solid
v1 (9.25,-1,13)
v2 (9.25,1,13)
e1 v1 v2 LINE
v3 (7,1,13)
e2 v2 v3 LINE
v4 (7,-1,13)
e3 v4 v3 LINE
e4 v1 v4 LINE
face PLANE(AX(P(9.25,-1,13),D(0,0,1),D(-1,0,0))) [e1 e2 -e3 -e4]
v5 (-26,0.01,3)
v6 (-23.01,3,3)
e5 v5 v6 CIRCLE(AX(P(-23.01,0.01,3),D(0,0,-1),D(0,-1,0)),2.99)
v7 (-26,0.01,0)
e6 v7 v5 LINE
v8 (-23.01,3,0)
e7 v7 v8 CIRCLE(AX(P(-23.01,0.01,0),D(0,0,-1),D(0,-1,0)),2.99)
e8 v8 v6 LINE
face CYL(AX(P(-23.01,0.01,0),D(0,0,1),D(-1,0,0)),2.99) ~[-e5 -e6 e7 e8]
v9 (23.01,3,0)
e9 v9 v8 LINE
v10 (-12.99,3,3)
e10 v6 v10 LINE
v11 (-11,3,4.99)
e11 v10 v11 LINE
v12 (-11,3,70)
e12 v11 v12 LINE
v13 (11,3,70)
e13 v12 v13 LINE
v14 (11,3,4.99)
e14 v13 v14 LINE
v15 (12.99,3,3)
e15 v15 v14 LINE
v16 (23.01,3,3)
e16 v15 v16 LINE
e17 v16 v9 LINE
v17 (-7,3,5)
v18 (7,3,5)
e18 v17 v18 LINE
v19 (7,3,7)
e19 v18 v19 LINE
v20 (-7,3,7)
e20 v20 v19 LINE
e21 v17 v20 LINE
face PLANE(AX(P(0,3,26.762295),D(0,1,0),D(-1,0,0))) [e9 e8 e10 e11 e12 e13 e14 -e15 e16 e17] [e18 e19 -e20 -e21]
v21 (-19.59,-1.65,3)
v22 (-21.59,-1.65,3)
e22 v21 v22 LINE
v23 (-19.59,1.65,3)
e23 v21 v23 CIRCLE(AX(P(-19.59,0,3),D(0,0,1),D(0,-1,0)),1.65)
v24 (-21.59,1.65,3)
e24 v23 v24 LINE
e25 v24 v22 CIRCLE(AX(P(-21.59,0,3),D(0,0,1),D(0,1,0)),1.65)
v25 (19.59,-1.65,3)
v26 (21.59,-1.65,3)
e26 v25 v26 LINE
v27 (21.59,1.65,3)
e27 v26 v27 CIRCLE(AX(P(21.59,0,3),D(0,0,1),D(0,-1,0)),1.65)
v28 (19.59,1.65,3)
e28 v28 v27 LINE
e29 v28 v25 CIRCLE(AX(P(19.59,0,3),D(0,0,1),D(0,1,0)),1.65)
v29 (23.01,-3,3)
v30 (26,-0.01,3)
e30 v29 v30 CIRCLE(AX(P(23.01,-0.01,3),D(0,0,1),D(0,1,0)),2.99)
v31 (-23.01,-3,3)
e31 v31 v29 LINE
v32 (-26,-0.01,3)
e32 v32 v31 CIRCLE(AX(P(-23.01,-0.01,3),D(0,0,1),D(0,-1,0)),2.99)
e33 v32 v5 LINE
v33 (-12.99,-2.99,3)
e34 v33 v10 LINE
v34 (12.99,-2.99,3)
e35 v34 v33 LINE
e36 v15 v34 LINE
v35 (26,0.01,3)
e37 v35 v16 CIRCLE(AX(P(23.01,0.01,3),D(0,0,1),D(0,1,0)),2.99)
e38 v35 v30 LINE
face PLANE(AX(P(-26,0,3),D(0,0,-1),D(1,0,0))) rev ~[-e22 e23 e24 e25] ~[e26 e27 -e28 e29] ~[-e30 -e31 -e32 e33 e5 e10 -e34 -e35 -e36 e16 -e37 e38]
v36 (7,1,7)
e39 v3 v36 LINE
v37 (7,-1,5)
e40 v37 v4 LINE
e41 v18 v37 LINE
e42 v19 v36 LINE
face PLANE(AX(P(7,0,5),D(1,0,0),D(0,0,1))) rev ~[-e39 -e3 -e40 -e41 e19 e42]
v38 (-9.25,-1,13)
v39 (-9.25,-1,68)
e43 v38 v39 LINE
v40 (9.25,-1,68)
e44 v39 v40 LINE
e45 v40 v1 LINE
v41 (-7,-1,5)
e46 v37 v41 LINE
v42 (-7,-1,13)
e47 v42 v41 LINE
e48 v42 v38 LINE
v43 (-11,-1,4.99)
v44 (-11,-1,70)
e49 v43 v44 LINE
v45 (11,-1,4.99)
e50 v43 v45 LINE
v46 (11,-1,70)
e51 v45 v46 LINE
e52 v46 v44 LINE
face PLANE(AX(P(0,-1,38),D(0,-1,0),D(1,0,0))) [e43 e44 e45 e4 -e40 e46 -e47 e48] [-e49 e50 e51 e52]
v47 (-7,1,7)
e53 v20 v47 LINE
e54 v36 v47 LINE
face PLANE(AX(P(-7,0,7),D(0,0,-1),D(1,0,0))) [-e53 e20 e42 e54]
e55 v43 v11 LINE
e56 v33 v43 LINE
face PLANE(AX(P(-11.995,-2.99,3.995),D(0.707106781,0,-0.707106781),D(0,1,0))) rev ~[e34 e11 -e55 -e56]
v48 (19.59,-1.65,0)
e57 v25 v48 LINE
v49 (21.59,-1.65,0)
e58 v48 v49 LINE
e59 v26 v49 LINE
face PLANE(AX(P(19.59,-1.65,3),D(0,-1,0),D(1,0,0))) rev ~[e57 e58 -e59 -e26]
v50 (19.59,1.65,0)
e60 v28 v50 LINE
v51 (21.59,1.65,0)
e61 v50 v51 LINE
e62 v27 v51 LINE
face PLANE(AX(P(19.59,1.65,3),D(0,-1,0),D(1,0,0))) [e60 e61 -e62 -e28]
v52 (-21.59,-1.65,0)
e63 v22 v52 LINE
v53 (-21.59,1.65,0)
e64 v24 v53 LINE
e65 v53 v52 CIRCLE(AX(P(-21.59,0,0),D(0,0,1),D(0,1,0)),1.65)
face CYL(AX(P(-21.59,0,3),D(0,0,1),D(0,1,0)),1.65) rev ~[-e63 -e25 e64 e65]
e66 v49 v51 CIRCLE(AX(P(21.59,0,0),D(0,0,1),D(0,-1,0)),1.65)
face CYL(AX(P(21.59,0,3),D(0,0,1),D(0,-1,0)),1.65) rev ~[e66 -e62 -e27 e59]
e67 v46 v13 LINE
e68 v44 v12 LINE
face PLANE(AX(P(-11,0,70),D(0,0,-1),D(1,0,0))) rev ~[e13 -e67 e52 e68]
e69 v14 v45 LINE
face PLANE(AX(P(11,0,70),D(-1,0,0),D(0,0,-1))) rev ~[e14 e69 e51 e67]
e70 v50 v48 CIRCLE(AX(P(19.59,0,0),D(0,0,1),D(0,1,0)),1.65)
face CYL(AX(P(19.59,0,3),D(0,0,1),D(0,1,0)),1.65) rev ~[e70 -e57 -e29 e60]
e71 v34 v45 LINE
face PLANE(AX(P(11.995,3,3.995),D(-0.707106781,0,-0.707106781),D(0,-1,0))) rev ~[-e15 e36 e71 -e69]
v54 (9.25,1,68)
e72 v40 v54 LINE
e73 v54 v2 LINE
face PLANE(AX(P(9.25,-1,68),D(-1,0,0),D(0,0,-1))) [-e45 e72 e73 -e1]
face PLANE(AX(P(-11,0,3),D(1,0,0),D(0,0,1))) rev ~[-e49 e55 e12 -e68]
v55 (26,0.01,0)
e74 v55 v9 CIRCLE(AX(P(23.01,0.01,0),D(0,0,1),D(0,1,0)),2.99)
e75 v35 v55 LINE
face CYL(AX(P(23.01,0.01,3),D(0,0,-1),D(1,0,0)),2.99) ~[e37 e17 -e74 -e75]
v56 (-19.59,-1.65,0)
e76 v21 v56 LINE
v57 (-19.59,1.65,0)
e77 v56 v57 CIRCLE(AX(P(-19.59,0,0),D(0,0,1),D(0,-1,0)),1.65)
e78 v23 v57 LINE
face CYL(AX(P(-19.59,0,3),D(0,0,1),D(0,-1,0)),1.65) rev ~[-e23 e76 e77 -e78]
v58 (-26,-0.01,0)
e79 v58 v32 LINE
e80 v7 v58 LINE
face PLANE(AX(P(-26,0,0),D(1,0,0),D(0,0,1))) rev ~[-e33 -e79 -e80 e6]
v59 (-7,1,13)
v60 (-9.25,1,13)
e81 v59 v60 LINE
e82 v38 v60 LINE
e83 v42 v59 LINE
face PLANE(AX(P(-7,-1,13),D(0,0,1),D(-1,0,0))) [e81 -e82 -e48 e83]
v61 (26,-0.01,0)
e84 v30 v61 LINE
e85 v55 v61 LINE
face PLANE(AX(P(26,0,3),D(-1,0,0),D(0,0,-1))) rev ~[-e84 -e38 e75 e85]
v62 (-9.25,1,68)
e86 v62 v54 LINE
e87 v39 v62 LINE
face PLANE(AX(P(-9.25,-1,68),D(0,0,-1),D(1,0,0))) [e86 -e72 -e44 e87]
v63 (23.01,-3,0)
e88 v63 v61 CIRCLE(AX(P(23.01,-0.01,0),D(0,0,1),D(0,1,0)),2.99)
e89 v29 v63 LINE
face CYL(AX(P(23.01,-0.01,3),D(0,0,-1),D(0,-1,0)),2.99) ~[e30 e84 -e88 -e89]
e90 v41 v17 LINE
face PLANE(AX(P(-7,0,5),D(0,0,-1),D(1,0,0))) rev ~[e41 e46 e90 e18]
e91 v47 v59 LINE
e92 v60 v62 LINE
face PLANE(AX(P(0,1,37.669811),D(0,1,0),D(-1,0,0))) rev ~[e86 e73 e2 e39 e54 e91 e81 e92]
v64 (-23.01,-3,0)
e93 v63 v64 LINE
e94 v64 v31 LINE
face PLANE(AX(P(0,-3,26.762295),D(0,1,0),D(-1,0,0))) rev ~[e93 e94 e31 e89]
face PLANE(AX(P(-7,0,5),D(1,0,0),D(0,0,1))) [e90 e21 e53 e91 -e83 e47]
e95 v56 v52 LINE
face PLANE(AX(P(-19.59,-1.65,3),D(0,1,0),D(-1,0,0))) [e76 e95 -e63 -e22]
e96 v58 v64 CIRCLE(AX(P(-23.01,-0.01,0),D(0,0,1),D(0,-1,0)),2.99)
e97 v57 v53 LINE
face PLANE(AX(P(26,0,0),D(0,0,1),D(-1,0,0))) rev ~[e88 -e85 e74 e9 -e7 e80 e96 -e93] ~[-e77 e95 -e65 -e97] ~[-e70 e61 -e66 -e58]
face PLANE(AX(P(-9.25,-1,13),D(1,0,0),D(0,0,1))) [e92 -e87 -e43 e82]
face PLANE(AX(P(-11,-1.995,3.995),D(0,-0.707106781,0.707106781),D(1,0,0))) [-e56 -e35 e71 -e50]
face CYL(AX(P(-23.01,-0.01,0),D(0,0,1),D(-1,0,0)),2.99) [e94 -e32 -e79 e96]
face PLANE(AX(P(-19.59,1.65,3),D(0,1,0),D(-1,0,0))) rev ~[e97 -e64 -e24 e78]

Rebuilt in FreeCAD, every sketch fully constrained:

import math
import FreeCAD as App
import Part
import Sketcher
Q = App.Units.Quantity


def edges_at(feature, points):
    """Names of the edges that pass closest to the given points."""
    edges = feature.Shape.Edges
    near = lambda p: min(range(len(edges)), key=lambda i: edges[i].distToShape(Part.Vertex(*p))[0])
    return sorted({f"Edge{near(p) + 1}" for p in points})


def add_polygon(sketch, points):
    """Adds a closed chain of lines whose ends are joined by coincident constraints."""
    first, n = sketch.GeometryCount, len(points)
    for a, b in zip(points, points[1:] + points[:1]):
        sketch.addGeometry(Part.LineSegment(App.Vector(*a, 0), App.Vector(*b, 0)), False)
    for i in range(n):
        sketch.addConstraint(Sketcher.Constraint("Coincident", first + i, 2, first + (i + 1) % n, 1))

doc = App.newDocument("Part")
body = doc.addObject("PartDesign::Body", "Body")

sketch1 = doc.addObject("Sketcher::SketchObject", "Sketch")
body.addObject(sketch1)
sketch1.AttachmentSupport = (doc.XZ_Plane, [""])
sketch1.MapMode = "FlatFace"
add_polygon(sketch1, [(-26, 3), (-26, 0), (26, 0), (26, 3), (11, 3), (11, 70), (-11, 70), (-11, 3)])
add_polygon(sketch1, [(-7, 5), (-7, 7), (7, 7), (7, 5)])
sketch1.addConstraint([
    Sketcher.Constraint("Vertical", 0),
    Sketcher.Constraint("Horizontal", 1),
    Sketcher.Constraint("Vertical", 2),
    Sketcher.Constraint("Horizontal", 3),
    Sketcher.Constraint("Vertical", 4),
    Sketcher.Constraint("Horizontal", 5),
    Sketcher.Constraint("Vertical", 6),
    Sketcher.Constraint("Horizontal", 7),
    Sketcher.Constraint("Vertical", 8),
    Sketcher.Constraint("Horizontal", 9),
    Sketcher.Constraint("Vertical", 10),
    Sketcher.Constraint("Horizontal", 11),
    Sketcher.Constraint("Symmetric", 0, 2, 1, 2, -1, 1),
    Sketcher.Constraint("Symmetric", 3, 2, 6, 2, -2),
    Sketcher.Constraint("DistanceX", 1, 1, 1, 2, Q("52 mm")),
    Sketcher.Constraint("DistanceX", 3, 2, 3, 1, Q("15 mm")),
    Sketcher.Constraint("DistanceX", 9, 1, 9, 2, Q("14 mm")),
    Sketcher.Constraint("DistanceY", 0, 2, 0, 1, Q("3 mm")),
    Sketcher.Constraint("DistanceY", 4, 1, 4, 2, Q("67 mm")),
    Sketcher.Constraint("DistanceY", 8, 1, 8, 2, Q("2 mm")),
    Sketcher.Constraint("DistanceX", 8, 2, -1, 1, Q("7 mm")),
    Sketcher.Constraint("DistanceY", -1, 1, 8, 2, Q("7 mm")),
])
pad1 = doc.addObject("PartDesign::Pad", "Pad")
body.addObject(pad1)
pad1.Profile = sketch1
pad1.Length = 6
pad1.Midplane = True

sketch2 = doc.addObject("Sketcher::SketchObject", "Sketch001")
body.addObject(sketch2)
sketch2.AttachmentSupport = (doc.XZ_Plane, [""])
sketch2.MapMode = "FlatFace"
sketch2.AttachmentOffset = App.Placement(App.Vector(0, 0, 3), App.Rotation())
add_polygon(sketch2, [(-11, 73), (-11, 3), (11, 3), (11, 73)])
sketch2.addConstraint([
    Sketcher.Constraint("Vertical", 0),
    Sketcher.Constraint("Horizontal", 1),
    Sketcher.Constraint("Vertical", 2),
    Sketcher.Constraint("Horizontal", 3),
    Sketcher.Constraint("DistanceX", 1, 1, 1, 2, Q("22 mm")),
    Sketcher.Constraint("DistanceY", 0, 2, 0, 1, Q("70 mm")),
    Sketcher.Constraint("DistanceX", 0, 2, -1, 1, Q("11 mm")),
    Sketcher.Constraint("DistanceY", -1, 1, 0, 2, Q("3 mm")),
])
pocket1 = doc.addObject("PartDesign::Pocket", "Pocket")
body.addObject(pocket1)
pocket1.Profile = sketch2
pocket1.Length = 2

sketch3 = doc.addObject("Sketcher::SketchObject", "Sketch002")
body.addObject(sketch3)
sketch3.AttachmentSupport = (doc.XZ_Plane, [""])
sketch3.MapMode = "FlatFace"
sketch3.AttachmentOffset = App.Placement(App.Vector(0, 0, 1), App.Rotation())
add_polygon(sketch3, [(9.2, 68), (-9.2, 68), (-9.2, 13), (-7, 13), (-7, 7), (7, 7), (7, 13), (9.2, 13)])
sketch3.addConstraint([
    Sketcher.Constraint("Horizontal", 0),
    Sketcher.Constraint("Vertical", 1),
    Sketcher.Constraint("Horizontal", 2),
    Sketcher.Constraint("Vertical", 3),
    Sketcher.Constraint("Horizontal", 4),
    Sketcher.Constraint("Vertical", 5),
    Sketcher.Constraint("Horizontal", 6),
    Sketcher.Constraint("Vertical", 7),
    Sketcher.Constraint("Symmetric", 2, 2, 5, 2, -2),
    Sketcher.Constraint("Equal", 2, 6),
    Sketcher.Constraint("DistanceX", 4, 1, 4, 2, Q("14 mm")),
    Sketcher.Constraint("DistanceY", 1, 2, 1, 1, Q("55 mm")),
    Sketcher.Constraint("DistanceY", 3, 2, 3, 1, Q("6 mm")),
    Sketcher.Constraint("DistanceX", 0, 2, 0, 1, Q("18.5 mm")),
    Sketcher.Constraint("DistanceY", -1, 1, 0, 2, Q("68 mm")),
])
pocket2 = doc.addObject("PartDesign::Pocket", "Pocket001")
body.addObject(pocket2)
pocket2.Profile = sketch3
pocket2.Length = 2

sketch4 = doc.addObject("Sketcher::SketchObject", "Sketch003")
body.addObject(sketch4)
sketch4.AttachmentSupport = (doc.XY_Plane, [""])
sketch4.MapMode = "FlatFace"
sketch4.AttachmentOffset = App.Placement(App.Vector(0, 0, 3), App.Rotation())
sketch4.addGeometry([
    Part.ArcOfCircle(Part.Circle(App.Vector(19.6, 0, 0), App.Vector(0, 0, 1), 1.6), math.radians(90), math.radians(270)),
    Part.LineSegment(App.Vector(19.6, -1.6, 0), App.Vector(21.6, -1.6, 0)),
    Part.ArcOfCircle(Part.Circle(App.Vector(21.6, 0, 0), App.Vector(0, 0, 1), 1.6), math.radians(-90), math.radians(90)),
    Part.LineSegment(App.Vector(21.6, 1.6, 0), App.Vector(19.6, 1.6, 0)),
    Part.ArcOfCircle(Part.Circle(App.Vector(-19.6, 0, 0), App.Vector(0, 0, 1), 1.6), math.radians(-90), math.radians(90)),
    Part.LineSegment(App.Vector(-19.6, 1.6, 0), App.Vector(-21.6, 1.6, 0)),
    Part.ArcOfCircle(Part.Circle(App.Vector(-21.6, 0, 0), App.Vector(0, 0, 1), 1.6), math.radians(90), math.radians(270)),
    Part.LineSegment(App.Vector(-21.6, -1.6, 0), App.Vector(-19.6, -1.6, 0)),
], False)
sketch4.addConstraint([
    Sketcher.Constraint("Tangent", 0, 2, 1, 1),
    Sketcher.Constraint("Tangent", 1, 2, 2, 1),
    Sketcher.Constraint("Tangent", 2, 2, 3, 1),
    Sketcher.Constraint("Tangent", 3, 2, 0, 1),
    Sketcher.Constraint("Tangent", 4, 2, 5, 1),
    Sketcher.Constraint("Tangent", 5, 2, 6, 1),
    Sketcher.Constraint("Tangent", 6, 2, 7, 1),
    Sketcher.Constraint("Tangent", 7, 2, 4, 1),
    Sketcher.Constraint("Horizontal", 1),
    Sketcher.Constraint("Horizontal", 3),
    Sketcher.Constraint("Horizontal", 5),
    Sketcher.Constraint("Horizontal", 7),
    Sketcher.Constraint("Equal", 2, 4),
    Sketcher.Constraint("Symmetric", 0, 3, 4, 3, -1, 1),
    Sketcher.Constraint("Symmetric", 2, 3, 6, 3, -2),
    Sketcher.Constraint("DistanceX", 1, 1, 1, 2, Q("2 mm")),
    Sketcher.Constraint("Radius", 0, Q("1.65 mm")),
    Sketcher.Constraint("DistanceX", -1, 1, 0, 3, Q("19.59 mm")),
])
pocket3 = doc.addObject("PartDesign::Pocket", "Pocket002")
body.addObject(pocket3)
pocket3.Profile = sketch4
pocket3.Type = "ThroughAll"
doc.recompute()

chamfer = doc.addObject("PartDesign::Chamfer", "Chamfer")
body.addObject(chamfer)
chamfer.Base = (pocket3, edges_at(pocket3, [(0, -1, 3)]))
chamfer.Size = 1.99
doc.recompute()

chamfer2 = doc.addObject("PartDesign::Chamfer", "Chamfer001")
body.addObject(chamfer2)
chamfer2.Base = (chamfer, edges_at(chamfer, [(-11, 0.005, 3), (11, 0.005, 3)]))
chamfer2.Size = 1.99
doc.recompute()

fillet = doc.addObject("PartDesign::Fillet", "Fillet")
body.addObject(fillet)
fillet.Base = (chamfer2, edges_at(chamfer2, [
    (-26, 3, 1.5),
    (-26, -3, 1.5),
    (26, -3, 1.5),
    (26, 3, 1.5),
]))
fillet.Radius = 2.99

doc.recompute()
